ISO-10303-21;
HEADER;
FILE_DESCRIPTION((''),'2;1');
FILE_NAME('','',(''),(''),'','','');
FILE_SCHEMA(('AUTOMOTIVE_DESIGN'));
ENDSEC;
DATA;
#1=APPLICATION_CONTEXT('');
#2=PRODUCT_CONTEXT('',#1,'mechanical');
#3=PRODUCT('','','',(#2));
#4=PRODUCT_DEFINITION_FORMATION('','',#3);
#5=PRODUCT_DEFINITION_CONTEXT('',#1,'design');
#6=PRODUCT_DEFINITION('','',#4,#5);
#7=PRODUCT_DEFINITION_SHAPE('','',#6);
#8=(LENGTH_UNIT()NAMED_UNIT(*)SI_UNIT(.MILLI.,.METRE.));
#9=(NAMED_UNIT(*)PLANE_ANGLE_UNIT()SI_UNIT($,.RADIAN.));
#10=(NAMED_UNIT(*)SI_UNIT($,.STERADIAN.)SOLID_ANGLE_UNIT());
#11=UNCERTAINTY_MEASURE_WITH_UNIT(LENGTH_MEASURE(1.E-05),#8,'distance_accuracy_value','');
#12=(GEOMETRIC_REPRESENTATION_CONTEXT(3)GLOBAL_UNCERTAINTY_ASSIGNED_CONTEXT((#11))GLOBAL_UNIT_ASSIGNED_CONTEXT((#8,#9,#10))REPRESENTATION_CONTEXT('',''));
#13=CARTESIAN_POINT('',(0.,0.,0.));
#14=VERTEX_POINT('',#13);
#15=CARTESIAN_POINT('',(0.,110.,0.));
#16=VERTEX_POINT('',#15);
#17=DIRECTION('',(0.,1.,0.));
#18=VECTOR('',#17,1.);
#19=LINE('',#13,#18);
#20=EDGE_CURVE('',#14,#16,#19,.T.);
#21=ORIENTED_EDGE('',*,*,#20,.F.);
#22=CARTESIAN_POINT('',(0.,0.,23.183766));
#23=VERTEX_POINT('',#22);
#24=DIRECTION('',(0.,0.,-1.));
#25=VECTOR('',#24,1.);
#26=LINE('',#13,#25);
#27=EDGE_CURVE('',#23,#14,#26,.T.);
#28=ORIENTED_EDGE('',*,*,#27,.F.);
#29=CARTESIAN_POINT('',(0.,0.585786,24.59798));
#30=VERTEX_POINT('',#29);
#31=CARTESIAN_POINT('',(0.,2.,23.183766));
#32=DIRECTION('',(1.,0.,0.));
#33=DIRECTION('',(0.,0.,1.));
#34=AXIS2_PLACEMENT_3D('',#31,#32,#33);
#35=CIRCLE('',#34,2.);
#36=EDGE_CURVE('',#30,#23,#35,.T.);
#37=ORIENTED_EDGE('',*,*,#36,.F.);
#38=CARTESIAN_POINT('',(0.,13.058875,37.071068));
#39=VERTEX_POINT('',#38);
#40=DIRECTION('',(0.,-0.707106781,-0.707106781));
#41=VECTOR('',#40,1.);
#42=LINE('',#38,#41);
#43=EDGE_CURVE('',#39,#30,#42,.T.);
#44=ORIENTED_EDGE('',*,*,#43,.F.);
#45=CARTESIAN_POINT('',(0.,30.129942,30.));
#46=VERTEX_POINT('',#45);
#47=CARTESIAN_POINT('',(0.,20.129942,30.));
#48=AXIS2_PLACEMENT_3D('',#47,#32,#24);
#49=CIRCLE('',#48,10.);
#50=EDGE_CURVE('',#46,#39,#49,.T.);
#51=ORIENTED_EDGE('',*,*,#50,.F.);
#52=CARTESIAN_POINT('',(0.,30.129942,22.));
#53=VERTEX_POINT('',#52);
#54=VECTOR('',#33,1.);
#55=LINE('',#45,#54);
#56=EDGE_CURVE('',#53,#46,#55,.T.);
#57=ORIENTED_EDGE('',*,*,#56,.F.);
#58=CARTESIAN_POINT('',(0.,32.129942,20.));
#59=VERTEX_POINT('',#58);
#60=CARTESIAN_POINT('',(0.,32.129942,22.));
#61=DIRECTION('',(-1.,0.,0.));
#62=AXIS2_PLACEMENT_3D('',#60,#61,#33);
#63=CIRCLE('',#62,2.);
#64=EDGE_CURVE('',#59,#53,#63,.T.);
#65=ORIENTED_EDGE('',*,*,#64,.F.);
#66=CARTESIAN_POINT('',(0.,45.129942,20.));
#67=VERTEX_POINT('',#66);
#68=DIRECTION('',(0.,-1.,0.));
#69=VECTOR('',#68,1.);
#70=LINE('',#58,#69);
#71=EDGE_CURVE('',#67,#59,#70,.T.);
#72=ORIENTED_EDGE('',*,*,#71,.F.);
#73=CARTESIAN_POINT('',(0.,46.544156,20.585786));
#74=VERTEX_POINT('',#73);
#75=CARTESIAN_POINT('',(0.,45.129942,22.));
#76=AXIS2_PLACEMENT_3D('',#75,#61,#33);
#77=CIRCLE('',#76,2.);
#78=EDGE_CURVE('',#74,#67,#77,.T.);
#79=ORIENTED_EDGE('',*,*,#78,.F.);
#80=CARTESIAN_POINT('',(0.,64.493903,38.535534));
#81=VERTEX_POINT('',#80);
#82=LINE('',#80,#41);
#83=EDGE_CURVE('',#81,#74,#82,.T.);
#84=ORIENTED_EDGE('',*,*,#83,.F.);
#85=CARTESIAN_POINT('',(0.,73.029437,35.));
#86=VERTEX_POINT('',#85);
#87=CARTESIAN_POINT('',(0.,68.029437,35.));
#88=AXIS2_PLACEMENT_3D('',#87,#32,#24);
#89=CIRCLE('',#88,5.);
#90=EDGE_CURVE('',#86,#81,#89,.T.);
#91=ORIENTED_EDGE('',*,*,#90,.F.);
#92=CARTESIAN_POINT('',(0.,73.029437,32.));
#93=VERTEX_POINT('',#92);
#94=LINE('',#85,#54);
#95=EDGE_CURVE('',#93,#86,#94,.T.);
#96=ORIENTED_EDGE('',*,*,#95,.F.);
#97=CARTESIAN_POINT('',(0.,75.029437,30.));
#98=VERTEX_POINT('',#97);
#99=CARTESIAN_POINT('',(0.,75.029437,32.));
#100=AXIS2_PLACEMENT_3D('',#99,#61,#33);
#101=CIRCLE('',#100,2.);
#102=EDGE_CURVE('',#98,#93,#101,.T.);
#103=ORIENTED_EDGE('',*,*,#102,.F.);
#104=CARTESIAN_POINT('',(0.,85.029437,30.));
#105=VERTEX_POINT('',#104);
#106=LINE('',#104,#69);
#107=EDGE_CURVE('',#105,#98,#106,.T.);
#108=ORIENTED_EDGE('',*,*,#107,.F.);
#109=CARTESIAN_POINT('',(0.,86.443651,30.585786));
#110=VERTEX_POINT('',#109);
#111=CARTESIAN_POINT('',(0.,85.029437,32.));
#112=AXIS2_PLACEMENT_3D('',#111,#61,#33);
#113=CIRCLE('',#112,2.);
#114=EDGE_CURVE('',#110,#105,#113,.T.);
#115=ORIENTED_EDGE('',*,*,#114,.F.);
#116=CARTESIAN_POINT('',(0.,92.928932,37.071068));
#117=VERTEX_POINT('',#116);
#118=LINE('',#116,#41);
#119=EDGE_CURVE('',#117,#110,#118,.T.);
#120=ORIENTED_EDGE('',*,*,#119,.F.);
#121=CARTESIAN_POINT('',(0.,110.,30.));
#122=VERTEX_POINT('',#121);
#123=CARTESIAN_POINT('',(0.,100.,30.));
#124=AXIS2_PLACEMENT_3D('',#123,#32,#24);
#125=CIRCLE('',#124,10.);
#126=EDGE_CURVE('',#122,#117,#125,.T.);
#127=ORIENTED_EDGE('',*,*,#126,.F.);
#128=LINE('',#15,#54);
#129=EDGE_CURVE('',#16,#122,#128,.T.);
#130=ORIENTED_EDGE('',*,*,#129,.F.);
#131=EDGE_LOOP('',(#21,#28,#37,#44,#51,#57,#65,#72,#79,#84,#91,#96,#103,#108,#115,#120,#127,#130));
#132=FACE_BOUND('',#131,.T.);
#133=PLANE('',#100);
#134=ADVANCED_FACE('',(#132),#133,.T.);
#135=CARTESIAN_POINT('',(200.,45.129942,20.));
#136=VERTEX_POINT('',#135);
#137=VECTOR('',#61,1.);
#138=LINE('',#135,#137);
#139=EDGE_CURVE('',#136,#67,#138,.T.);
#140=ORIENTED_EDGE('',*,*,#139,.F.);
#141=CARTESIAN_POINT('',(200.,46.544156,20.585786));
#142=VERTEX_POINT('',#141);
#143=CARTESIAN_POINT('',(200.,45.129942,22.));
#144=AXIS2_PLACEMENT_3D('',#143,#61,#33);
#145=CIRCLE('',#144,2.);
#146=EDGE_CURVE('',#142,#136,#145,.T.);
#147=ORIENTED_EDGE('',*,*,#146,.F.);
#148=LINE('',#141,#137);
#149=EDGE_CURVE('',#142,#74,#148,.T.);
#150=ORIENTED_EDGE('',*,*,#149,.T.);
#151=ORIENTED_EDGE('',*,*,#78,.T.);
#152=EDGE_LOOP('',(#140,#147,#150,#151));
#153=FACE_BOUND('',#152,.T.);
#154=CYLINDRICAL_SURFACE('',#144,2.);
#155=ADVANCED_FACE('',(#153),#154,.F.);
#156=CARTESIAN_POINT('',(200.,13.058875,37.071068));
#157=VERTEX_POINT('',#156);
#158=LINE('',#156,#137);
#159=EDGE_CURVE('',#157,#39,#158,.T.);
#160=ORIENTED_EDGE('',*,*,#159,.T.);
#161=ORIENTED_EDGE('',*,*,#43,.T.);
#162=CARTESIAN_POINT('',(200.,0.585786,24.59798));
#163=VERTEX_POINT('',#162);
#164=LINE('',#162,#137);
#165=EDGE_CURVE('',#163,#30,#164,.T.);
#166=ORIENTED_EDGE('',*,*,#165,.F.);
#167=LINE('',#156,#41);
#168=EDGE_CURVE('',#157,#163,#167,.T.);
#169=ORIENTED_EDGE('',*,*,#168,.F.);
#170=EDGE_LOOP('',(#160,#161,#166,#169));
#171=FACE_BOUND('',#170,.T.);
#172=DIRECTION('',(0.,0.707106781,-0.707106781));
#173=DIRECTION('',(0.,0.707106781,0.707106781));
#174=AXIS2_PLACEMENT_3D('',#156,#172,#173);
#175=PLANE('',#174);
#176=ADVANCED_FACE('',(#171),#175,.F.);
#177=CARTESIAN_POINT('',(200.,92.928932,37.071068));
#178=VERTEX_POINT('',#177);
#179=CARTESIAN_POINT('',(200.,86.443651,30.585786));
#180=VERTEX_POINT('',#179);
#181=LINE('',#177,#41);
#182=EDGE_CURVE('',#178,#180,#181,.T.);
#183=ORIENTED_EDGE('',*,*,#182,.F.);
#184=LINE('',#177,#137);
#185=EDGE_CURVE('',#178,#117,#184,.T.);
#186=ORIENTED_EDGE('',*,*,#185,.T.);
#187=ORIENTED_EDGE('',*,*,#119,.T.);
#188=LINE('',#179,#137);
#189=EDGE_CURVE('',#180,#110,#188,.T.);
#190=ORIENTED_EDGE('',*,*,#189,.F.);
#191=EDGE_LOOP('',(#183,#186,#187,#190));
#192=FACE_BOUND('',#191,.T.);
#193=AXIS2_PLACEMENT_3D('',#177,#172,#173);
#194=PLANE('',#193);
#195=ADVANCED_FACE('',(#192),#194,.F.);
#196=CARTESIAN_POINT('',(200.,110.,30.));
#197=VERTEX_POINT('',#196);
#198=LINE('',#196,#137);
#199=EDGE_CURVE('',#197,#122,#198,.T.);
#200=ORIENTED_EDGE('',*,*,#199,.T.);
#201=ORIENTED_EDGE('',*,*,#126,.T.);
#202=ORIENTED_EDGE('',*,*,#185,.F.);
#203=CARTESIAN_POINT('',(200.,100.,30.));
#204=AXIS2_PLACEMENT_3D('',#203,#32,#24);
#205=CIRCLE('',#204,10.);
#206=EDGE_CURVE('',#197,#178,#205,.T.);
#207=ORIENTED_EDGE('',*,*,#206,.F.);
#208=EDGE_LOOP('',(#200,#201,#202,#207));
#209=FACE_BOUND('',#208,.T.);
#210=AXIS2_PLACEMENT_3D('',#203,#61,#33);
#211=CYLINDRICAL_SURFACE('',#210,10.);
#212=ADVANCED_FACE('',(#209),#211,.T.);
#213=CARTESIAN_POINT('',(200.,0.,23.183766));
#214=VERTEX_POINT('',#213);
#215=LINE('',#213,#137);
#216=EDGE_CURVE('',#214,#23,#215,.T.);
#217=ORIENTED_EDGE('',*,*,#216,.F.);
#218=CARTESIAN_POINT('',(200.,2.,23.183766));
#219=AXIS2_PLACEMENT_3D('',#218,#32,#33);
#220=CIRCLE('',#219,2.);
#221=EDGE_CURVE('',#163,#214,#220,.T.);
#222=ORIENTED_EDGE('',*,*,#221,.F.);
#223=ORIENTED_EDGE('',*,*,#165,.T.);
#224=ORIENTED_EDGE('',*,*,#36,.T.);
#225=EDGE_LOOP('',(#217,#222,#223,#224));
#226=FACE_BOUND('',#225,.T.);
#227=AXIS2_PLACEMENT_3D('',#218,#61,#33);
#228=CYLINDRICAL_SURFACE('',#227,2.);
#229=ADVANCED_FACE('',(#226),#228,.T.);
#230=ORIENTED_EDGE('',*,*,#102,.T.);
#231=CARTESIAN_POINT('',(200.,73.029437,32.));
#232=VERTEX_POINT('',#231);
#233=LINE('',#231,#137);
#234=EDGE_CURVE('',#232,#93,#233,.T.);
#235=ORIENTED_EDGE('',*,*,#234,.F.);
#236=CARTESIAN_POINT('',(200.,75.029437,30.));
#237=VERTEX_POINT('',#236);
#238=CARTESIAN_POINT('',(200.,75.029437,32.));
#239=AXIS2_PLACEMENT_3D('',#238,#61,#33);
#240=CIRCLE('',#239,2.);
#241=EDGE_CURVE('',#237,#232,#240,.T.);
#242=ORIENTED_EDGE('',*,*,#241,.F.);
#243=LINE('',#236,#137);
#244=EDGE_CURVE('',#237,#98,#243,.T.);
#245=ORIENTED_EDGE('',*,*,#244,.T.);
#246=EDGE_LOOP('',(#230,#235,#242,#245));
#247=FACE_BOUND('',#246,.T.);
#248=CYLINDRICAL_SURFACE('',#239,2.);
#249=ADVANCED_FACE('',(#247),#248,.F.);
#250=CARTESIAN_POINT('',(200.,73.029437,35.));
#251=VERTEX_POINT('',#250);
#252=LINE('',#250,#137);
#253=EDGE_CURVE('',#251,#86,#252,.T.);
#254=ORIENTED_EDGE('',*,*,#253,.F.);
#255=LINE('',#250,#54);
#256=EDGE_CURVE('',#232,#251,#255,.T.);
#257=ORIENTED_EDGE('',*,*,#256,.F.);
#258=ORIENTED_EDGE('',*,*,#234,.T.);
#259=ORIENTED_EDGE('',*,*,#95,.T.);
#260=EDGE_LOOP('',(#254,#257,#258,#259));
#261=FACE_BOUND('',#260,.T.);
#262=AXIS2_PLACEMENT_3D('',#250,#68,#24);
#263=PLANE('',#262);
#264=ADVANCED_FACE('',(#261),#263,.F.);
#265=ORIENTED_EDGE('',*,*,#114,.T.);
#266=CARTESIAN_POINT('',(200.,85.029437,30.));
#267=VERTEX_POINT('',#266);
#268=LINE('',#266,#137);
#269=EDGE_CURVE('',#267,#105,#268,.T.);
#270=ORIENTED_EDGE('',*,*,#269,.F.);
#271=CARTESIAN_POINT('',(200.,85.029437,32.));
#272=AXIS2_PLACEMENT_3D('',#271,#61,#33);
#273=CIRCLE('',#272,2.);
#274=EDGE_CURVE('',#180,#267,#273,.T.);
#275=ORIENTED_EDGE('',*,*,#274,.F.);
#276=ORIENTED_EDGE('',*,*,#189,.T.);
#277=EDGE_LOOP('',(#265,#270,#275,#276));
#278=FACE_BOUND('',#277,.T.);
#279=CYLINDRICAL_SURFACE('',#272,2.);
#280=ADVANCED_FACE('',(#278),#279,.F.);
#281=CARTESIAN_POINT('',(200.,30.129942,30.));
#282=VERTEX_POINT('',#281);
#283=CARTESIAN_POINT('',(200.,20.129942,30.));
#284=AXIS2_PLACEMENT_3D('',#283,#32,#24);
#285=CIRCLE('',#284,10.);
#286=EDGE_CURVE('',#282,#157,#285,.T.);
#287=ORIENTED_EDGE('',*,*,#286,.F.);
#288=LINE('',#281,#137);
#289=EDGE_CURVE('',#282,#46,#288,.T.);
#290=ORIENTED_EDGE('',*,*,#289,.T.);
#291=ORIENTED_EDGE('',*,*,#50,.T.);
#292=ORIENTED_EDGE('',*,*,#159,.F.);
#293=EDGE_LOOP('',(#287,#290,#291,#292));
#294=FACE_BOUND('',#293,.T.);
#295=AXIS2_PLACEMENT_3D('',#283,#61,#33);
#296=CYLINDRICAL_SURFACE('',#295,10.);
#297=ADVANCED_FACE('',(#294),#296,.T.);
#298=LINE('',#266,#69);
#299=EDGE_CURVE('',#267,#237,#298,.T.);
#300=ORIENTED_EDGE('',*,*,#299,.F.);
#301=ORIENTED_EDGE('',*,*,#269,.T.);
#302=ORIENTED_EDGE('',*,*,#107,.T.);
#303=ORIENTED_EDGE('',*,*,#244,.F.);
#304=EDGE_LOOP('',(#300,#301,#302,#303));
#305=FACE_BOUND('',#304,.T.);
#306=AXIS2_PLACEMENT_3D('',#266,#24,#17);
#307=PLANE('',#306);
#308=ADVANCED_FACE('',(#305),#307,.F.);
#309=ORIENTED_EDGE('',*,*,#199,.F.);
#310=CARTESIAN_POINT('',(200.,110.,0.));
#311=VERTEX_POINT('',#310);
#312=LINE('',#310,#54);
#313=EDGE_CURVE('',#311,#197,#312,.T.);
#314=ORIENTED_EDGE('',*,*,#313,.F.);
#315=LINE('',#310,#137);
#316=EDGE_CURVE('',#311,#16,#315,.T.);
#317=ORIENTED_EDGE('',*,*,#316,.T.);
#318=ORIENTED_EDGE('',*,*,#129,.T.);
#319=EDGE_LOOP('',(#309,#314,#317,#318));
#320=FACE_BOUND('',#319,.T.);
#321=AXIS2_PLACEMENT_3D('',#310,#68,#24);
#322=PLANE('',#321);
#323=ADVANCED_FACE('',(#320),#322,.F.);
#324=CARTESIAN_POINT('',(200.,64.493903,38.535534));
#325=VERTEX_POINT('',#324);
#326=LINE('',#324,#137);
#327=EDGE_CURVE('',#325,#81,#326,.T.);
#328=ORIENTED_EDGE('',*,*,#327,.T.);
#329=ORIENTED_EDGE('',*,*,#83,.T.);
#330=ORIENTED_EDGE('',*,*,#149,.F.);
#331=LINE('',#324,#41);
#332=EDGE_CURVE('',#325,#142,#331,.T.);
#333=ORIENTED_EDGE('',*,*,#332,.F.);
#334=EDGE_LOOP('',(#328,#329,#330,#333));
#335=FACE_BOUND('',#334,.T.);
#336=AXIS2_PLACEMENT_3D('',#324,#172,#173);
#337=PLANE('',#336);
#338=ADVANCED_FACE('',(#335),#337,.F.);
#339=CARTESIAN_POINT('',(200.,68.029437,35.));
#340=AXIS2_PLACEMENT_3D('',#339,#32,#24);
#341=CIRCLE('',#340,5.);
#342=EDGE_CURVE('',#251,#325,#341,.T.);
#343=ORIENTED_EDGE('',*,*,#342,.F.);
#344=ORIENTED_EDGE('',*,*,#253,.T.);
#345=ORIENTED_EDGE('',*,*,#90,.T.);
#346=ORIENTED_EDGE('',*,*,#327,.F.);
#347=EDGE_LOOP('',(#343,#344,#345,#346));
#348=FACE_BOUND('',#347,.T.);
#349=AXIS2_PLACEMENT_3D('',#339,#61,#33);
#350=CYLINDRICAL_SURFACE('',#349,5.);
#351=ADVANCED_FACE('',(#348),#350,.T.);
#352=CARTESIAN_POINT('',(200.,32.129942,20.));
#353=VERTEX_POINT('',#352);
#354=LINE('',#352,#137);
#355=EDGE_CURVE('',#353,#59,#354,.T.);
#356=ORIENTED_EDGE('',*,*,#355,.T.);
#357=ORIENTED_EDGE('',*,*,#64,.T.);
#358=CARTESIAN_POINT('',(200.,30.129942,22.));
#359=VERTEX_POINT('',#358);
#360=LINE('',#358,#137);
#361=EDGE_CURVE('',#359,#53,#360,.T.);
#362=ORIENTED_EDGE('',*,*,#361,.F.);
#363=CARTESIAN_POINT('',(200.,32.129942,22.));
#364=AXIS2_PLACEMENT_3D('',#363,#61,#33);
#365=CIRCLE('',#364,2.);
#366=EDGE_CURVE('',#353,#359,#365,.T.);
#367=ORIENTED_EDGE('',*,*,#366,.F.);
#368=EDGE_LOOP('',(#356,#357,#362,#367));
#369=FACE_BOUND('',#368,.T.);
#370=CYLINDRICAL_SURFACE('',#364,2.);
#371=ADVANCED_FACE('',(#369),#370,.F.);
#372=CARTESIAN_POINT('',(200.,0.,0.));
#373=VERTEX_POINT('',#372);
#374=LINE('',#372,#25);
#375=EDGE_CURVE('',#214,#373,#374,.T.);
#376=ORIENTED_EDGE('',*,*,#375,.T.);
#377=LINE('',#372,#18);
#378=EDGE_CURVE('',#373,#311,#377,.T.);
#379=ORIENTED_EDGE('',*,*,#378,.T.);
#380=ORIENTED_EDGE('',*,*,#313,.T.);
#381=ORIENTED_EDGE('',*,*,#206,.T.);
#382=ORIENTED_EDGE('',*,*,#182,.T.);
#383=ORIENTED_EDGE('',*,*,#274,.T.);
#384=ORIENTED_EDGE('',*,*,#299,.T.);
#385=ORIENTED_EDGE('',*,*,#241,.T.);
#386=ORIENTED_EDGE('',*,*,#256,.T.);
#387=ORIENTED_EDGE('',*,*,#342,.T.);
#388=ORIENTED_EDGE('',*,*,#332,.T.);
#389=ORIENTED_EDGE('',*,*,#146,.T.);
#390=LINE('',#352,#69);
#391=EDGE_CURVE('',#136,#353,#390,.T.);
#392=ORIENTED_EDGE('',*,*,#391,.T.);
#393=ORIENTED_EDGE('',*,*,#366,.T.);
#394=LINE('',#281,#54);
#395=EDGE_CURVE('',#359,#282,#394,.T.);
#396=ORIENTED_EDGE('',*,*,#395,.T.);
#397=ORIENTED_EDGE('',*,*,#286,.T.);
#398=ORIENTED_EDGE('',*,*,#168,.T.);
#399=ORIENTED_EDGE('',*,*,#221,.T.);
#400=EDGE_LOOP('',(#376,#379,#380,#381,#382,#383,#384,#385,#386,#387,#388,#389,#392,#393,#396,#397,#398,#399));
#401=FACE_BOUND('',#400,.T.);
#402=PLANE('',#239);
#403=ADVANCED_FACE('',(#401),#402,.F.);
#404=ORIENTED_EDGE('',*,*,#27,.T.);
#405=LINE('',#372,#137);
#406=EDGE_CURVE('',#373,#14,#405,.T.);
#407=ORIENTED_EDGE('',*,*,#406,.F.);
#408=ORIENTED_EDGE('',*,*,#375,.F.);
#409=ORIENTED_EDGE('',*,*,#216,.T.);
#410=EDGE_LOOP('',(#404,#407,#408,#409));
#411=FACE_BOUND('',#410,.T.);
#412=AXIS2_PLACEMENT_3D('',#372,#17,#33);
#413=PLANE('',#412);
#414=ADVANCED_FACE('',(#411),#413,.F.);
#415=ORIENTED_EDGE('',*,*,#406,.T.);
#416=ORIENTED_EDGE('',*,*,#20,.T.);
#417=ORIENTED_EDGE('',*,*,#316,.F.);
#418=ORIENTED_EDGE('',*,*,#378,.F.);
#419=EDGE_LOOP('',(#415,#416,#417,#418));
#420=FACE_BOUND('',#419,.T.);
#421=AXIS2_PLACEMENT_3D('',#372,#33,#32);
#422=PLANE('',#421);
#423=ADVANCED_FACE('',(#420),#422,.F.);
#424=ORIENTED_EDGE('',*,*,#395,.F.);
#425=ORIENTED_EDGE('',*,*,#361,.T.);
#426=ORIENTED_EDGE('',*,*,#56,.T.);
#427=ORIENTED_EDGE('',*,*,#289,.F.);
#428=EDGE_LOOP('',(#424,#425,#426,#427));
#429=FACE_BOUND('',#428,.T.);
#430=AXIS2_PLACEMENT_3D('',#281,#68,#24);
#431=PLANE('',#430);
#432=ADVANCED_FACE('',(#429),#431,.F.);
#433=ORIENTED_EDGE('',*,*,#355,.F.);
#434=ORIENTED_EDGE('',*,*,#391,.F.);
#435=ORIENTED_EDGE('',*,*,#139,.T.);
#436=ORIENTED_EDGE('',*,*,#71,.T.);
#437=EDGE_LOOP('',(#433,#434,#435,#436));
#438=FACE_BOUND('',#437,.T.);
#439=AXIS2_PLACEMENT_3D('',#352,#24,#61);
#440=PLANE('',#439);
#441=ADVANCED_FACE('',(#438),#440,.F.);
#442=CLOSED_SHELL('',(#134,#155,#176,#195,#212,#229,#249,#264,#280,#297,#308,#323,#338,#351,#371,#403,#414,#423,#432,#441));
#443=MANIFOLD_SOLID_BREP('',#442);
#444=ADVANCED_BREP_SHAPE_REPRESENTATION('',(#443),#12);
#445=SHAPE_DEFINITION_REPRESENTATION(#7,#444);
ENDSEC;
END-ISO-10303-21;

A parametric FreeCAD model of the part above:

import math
import FreeCAD as App
import Part
import Sketcher
from FreeCAD import Vector
Q = App.Units.Quantity

doc = App.newDocument("Part")
body = doc.addObject("PartDesign::Body", "Body")

# Sketch on YZ plane
sketch1 = body.newObject("Sketcher::SketchObject", "Sketch")
sketch1.AttachmentSupport = (doc.getObject("YZ_Plane"), [""])
sketch1.MapMode = "FlatFace"
sketch1.addGeometry(Part.LineSegment(Vector(0, 23.183766, 0), Vector(0, 0, 0)), False)
sketch1.addGeometry(Part.LineSegment(Vector(0, 0, 0), Vector(110, 0, 0)), False)
sketch1.addGeometry(Part.LineSegment(Vector(110, 0, 0), Vector(110, 30, 0)), False)
sketch1.addGeometry(Part.ArcOfCircle(Part.Circle(Vector(100, 30, 0), Vector(0, 0, 1), 10), math.radians(0), math.radians(135)), False)
sketch1.addGeometry(Part.LineSegment(Vector(92.928932, 37.071068, 0), Vector(86.443651, 30.585786, 0)), False)
sketch1.addGeometry(Part.ArcOfCircle(Part.Circle(Vector(85.029437, 32, 0), Vector(0, 0, 1), 2), math.radians(-90), math.radians(-45)), False)
sketch1.addGeometry(Part.LineSegment(Vector(85.029437, 30, 0), Vector(75.029437, 30, 0)), False)
sketch1.addGeometry(Part.ArcOfCircle(Part.Circle(Vector(75.029437, 32, 0), Vector(0, 0, 1), 2), math.radians(180), math.radians(270)), False)
sketch1.addGeometry(Part.LineSegment(Vector(73.029437, 32, 0), Vector(73.029437, 35, 0)), False)
sketch1.addGeometry(Part.ArcOfCircle(Part.Circle(Vector(68.029437, 35, 0), Vector(0, 0, 1), 5), math.radians(0), math.radians(135)), False)
sketch1.addGeometry(Part.LineSegment(Vector(64.493903, 38.535534, 0), Vector(46.544156, 20.585786, 0)), False)
sketch1.addGeometry(Part.ArcOfCircle(Part.Circle(Vector(45.129942, 22, 0), Vector(0, 0, 1), 2), math.radians(-90), math.radians(-45)), False)
sketch1.addGeometry(Part.LineSegment(Vector(45.129942, 20, 0), Vector(32.129942, 20, 0)), False)
sketch1.addGeometry(Part.ArcOfCircle(Part.Circle(Vector(32.129942, 22, 0), Vector(0, 0, 1), 2), math.radians(-180), math.radians(-90)), False)
sketch1.addGeometry(Part.LineSegment(Vector(30.129942, 22, 0), Vector(30.129942, 30, 0)), False)
sketch1.addGeometry(Part.ArcOfCircle(Part.Circle(Vector(20.129942, 30, 0), Vector(0, 0, 1), 10), math.radians(0), math.radians(135)), False)
sketch1.addGeometry(Part.LineSegment(Vector(13.058875, 37.071068, 0), Vector(0.585786, 24.59798, 0)), False)
sketch1.addGeometry(Part.ArcOfCircle(Part.Circle(Vector(2, 23.183766, 0), Vector(0, 0, 1), 2), math.radians(135), math.radians(180)), False)
sketch1.addConstraint(Sketcher.Constraint("Coincident", 0, 2, 1, 1))
sketch1.addConstraint(Sketcher.Constraint("Coincident", 1, 2, 2, 1))
sketch1.addConstraint(Sketcher.Constraint("Tangent", 2, 2, 3, 1))
sketch1.addConstraint(Sketcher.Constraint("Tangent", 3, 2, 4, 1))
sketch1.addConstraint(Sketcher.Constraint("Tangent", 4, 2, 5, 2))
sketch1.addConstraint(Sketcher.Constraint("Tangent", 5, 1, 6, 1))
sketch1.addConstraint(Sketcher.Constraint("Tangent", 6, 2, 7, 2))
sketch1.addConstraint(Sketcher.Constraint("Tangent", 7, 1, 8, 1))
sketch1.addConstraint(Sketcher.Constraint("Tangent", 8, 2, 9, 1))
sketch1.addConstraint(Sketcher.Constraint("Tangent", 9, 2, 10, 1))
sketch1.addConstraint(Sketcher.Constraint("Tangent", 10, 2, 11, 2))
sketch1.addConstraint(Sketcher.Constraint("Tangent", 11, 1, 12, 1))
sketch1.addConstraint(Sketcher.Constraint("Tangent", 12, 2, 13, 2))
sketch1.addConstraint(Sketcher.Constraint("Tangent", 13, 1, 14, 1))
sketch1.addConstraint(Sketcher.Constraint("Tangent", 14, 2, 15, 1))
sketch1.addConstraint(Sketcher.Constraint("Tangent", 15, 2, 16, 1))
sketch1.addConstraint(Sketcher.Constraint("Tangent", 16, 2, 17, 1))
sketch1.addConstraint(Sketcher.Constraint("Tangent", 17, 2, 0, 1))
sketch1.addConstraint(Sketcher.Constraint("Vertical", 0))
sketch1.addConstraint(Sketcher.Constraint("Horizontal", 1))
sketch1.addConstraint(Sketcher.Constraint("Vertical", 2))
sketch1.addConstraint(Sketcher.Constraint("Horizontal", 6))
sketch1.addConstraint(Sketcher.Constraint("Vertical", 8))
sketch1.addConstraint(Sketcher.Constraint("Horizontal", 12))
sketch1.addConstraint(Sketcher.Constraint("Vertical", 14))
sketch1.addConstraint(Sketcher.Constraint("Coincident", 0, 2, -1, 1))
sketch1.addConstraint(Sketcher.Constraint("Equal", 5, 7))
sketch1.addConstraint(Sketcher.Constraint("Equal", 7, 11))
sketch1.addConstraint(Sketcher.Constraint("Equal", 11, 13))
sketch1.addConstraint(Sketcher.Constraint("Equal", 3, 15))
sketch1.addConstraint(Sketcher.Constraint("Equal", 13, 17))
sketch1.addConstraint(Sketcher.Constraint("Parallel", 4, 10))
sketch1.addConstraint(Sketcher.Constraint("Parallel", 10, 16))
sketch1.addConstraint(Sketcher.Constraint("Horizontal", 3, 3, 15, 3))
sketch1.addConstraint(Sketcher.Constraint("Horizontal", 2, 2, 5, 1))
sketch1.addConstraint(Sketcher.Constraint("Radius", 3, 10.0))
sketch1.addConstraint(Sketcher.Constraint("Radius", 5, 2.0))
sketch1.addConstraint(Sketcher.Constraint("Radius", 9, 5.0))
sketch1.addConstraint(Sketcher.Constraint("DistanceX", 1, 1, 1, 2, 110.0))
sketch1.addConstraint(Sketcher.Constraint("DistanceX", 6, 2, 6, 1, 10.0))
sketch1.addConstraint(Sketcher.Constraint("DistanceX", 12, 2, 12, 1, 13.0))
sketch1.addConstraint(Sketcher.Constraint("DistanceY", 2, 1, 2, 2, 30.0))
sketch1.addConstraint(Sketcher.Constraint("DistanceY", 8, 1, 8, 2, 3.0))
sketch1.addConstraint(Sketcher.Constraint("DistanceY", 14, 1, 14, 2, 8.0))
sketch1.addConstraint(Sketcher.Constraint("Angle", 4, Q("-135 deg")))
pad1 = body.newObject("PartDesign::Pad", "Pad")
pad1.Profile = sketch1
pad1.Length = 200

doc.recompute()
